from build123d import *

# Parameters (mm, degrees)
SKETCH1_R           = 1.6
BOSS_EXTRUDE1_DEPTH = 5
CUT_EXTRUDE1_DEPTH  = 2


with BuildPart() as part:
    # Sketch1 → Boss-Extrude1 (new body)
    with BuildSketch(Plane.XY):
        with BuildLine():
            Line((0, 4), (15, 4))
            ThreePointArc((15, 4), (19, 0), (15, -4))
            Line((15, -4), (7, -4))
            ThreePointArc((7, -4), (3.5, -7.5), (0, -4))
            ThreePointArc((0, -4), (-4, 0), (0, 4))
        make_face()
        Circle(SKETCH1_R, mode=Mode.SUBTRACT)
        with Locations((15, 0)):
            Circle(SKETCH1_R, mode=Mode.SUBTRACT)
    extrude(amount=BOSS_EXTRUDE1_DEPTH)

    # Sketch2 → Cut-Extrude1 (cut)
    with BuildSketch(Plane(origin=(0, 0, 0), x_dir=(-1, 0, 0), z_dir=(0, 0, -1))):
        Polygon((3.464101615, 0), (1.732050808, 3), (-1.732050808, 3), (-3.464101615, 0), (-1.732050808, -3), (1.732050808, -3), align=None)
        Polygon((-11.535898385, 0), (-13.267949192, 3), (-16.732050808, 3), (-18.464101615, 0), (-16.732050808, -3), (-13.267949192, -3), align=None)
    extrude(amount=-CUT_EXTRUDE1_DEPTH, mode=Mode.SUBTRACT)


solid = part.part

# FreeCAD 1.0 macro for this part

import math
import FreeCAD as App
import Part
import Sketcher
from FreeCAD import Vector
Q = App.Units.Quantity

doc = App.newDocument("Part")
params = doc.addObject("Spreadsheet::Sheet", "Params")
for row, (alias, value) in enumerate([
    ("sketch1_radius", "4 mm"),
    ("sketch1_diameter", "3.2 mm"),
    ("sketch1_radius2", "3.5 mm"),
    ("sketch1_width", "15 mm"),
    ("pad1_length", "5 mm"),
    ("pocket1_length", "2 mm"),
], start=1):
    params.set(f"A{row}", alias)
    params.set(f"B{row}", "=" + value)
    params.setAlias(f"B{row}", alias)

body = doc.addObject("PartDesign::Body", "Body")

sketch1 = doc.addObject("Sketcher::SketchObject", "Sketch")
body.addObject(sketch1)
sketch1.AttachmentSupport = (doc.XY_Plane, [""])
sketch1.MapMode = "FlatFace"
sketch1.addGeometry([
    Part.LineSegment(Vector(15, 4, 0), Vector(0, 4, 0)),
    Part.ArcOfCircle(Part.Circle(Vector(0, 0, 0), Vector(0, 0, 1), 4), math.radians(90), math.radians(270)),
    Part.ArcOfCircle(Part.Circle(Vector(3.5, -4, 0), Vector(0, 0, 1), 3.5), math.radians(180), math.radians(360)),
    Part.LineSegment(Vector(7, -4, 0), Vector(15, -4, 0)),
    Part.ArcOfCircle(Part.Circle(Vector(15, 0, 0), Vector(0, 0, 1), 4), math.radians(-90), math.radians(90)),
    Part.Circle(Vector(15, 0, 0), Vector(0, 0, 1), 1.6),
    Part.Circle(Vector(0, 0, 0), Vector(0, 0, 1), 1.6),
], False)
sketch1.addConstraint([
    Sketcher.Constraint("Tangent", 0, 2, 1, 1),
    Sketcher.Constraint("Coincident", 1, 2, 2, 1),
    Sketcher.Constraint("Coincident", 2, 2, 3, 1),
    Sketcher.Constraint("Tangent", 3, 2, 4, 1),
    Sketcher.Constraint("Tangent", 4, 2, 0, 1),
    Sketcher.Constraint("Horizontal", 0),
    Sketcher.Constraint("Horizontal", 3),
    Sketcher.Constraint("Coincident", 1, 3, -1, 1),
    Sketcher.Constraint("Coincident", 6, 3, -1, 1),
    Sketcher.Constraint("Coincident", 5, 3, 4, 3),
    Sketcher.Constraint("Equal", 1, 4),
    Sketcher.Constraint("Equal", 5, 6),
    Sketcher.Constraint("PointOnObject", 1, 2, -2),
    Sketcher.Constraint("Horizontal", 2, 3, 1, 2),
    Sketcher.Constraint("Radius", 1, Q("4 mm")),
    Sketcher.Constraint("Diameter", 5, Q("3.2 mm")),
    Sketcher.Constraint("Radius", 2, Q("3.5 mm")),
    Sketcher.Constraint("DistanceX", 0, 2, 0, 1, Q("15 mm")),
])
sketch1.setExpression("Constraints[14]", "Params.sketch1_radius")
sketch1.setExpression("Constraints[15]", "Params.sketch1_diameter")
sketch1.setExpression("Constraints[16]", "Params.sketch1_radius2")
sketch1.setExpression("Constraints[17]", "Params.sketch1_width")
pad1 = doc.addObject("PartDesign::Pad", "Pad")
body.addObject(pad1)
pad1.Profile = sketch1
pad1.setExpression("Length", "Params.pad1_length")

sketch2 = doc.addObject("Sketcher::SketchObject", "Sketch001")
body.addObject(sketch2)
sketch2.AttachmentSupport = (doc.XY_Plane, [""])
sketch2.MapMode = "FlatFace"
sketch2.addGeometry([
    Part.LineSegment(Vector(-3.5, 0, 0), Vector(-1.7, 3, 0)),
    Part.LineSegment(Vector(-1.7, 3, 0), Vector(1.7, 3, 0)),
    Part.LineSegment(Vector(1.7, 3, 0), Vector(3.5, 0, 0)),
    Part.LineSegment(Vector(3.5, 0, 0), Vector(1.7, -3, 0)),
    Part.LineSegment(Vector(1.7, -3, 0), Vector(-1.7, -3, 0)),
    Part.LineSegment(Vector(-1.7, -3, 0), Vector(-3.5, 0, 0)),
    Part.LineSegment(Vector(11.5, 0, 0), Vector(13.3, 3, 0)),
    Part.LineSegment(Vector(13.3, 3, 0), Vector(16.7, 3, 0)),
    Part.LineSegment(Vector(16.7, 3, 0), Vector(18.5, 0, 0)),
    Part.LineSegment(Vector(18.5, 0, 0), Vector(16.7, -3, 0)),
    Part.LineSegment(Vector(16.7, -3, 0), Vector(13.3, -3, 0)),
    Part.LineSegment(Vector(13.3, -3, 0), Vector(11.5, 0, 0)),
], False)
sketch2.addConstraint([
    Sketcher.Constraint("Coincident", 0, 2, 1, 1),
    Sketcher.Constraint("Coincident", 1, 2, 2, 1),
    Sketcher.Constraint("Coincident", 2, 2, 3, 1),
    Sketcher.Constraint("Coincident", 3, 2, 4, 1),
    Sketcher.Constraint("Coincident", 4, 2, 5, 1),
    Sketcher.Constraint("Coincident", 5, 2, 0, 1),
    Sketcher.Constraint("Coincident", 6, 2, 7, 1),
    Sketcher.Constraint("Coincident", 7, 2, 8, 1),
    Sketcher.Constraint("Coincident", 8, 2, 9, 1),
    Sketcher.Constraint("Coincident", 9, 2, 10, 1),
    Sketcher.Constraint("Coincident", 10, 2, 11, 1),
    Sketcher.Constraint("Coincident", 11, 2, 6, 1),
    Sketcher.Constraint("Horizontal", 1),
    Sketcher.Constraint("Horizontal", 4),
    Sketcher.Constraint("Horizontal", 7),
    Sketcher.Constraint("Horizontal", 10),
    Sketcher.Constraint("Symmetric", 0, 2, 3, 2, -1, 1),
    Sketcher.Constraint("Symmetric", 2, 2, 5, 2, -1, 1),
    Sketcher.Constraint("Symmetric", 7, 2, 9, 2, -1),
    Sketcher.Constraint("PointOnObject", 2, 2, -1),
    Sketcher.Constraint("PointOnObject", 8, 2, -1),
    Sketcher.Constraint("PointOnObject", 11, 2, -1),
    Sketcher.Constraint("Parallel", 2, 5),
    Sketcher.Constraint("Parallel", 3, 6),
    Sketcher.Constraint("Parallel", 5, 8),
    Sketcher.Constraint("Parallel", 6, 9),
    Sketcher.Constraint("Parallel", 8, 11),
    Sketcher.Constraint("Horizontal", 1, 2, 6, 2),
    Sketcher.Constraint("Equal", 4, 7),
    Sketcher.Constraint("Angle", 0, Q("60 deg")),
    Sketcher.Constraint("DistanceY", -1, 1, 0, 2, Q("3 mm")),
    Sketcher.Constraint("DistanceX", 0, 2, 6, 2, Q("15 mm")),
    Sketcher.Constraint("DistanceX", 1, 1, 1, 2, Q("3.464102 mm")),
])
pocket1 = doc.addObject("PartDesign::Pocket", "Pocket")
body.addObject(pocket1)
pocket1.Profile = sketch2
pocket1.setExpression("Length", "Params.pocket1_length")
pocket1.Reversed = True

doc.recompute()
